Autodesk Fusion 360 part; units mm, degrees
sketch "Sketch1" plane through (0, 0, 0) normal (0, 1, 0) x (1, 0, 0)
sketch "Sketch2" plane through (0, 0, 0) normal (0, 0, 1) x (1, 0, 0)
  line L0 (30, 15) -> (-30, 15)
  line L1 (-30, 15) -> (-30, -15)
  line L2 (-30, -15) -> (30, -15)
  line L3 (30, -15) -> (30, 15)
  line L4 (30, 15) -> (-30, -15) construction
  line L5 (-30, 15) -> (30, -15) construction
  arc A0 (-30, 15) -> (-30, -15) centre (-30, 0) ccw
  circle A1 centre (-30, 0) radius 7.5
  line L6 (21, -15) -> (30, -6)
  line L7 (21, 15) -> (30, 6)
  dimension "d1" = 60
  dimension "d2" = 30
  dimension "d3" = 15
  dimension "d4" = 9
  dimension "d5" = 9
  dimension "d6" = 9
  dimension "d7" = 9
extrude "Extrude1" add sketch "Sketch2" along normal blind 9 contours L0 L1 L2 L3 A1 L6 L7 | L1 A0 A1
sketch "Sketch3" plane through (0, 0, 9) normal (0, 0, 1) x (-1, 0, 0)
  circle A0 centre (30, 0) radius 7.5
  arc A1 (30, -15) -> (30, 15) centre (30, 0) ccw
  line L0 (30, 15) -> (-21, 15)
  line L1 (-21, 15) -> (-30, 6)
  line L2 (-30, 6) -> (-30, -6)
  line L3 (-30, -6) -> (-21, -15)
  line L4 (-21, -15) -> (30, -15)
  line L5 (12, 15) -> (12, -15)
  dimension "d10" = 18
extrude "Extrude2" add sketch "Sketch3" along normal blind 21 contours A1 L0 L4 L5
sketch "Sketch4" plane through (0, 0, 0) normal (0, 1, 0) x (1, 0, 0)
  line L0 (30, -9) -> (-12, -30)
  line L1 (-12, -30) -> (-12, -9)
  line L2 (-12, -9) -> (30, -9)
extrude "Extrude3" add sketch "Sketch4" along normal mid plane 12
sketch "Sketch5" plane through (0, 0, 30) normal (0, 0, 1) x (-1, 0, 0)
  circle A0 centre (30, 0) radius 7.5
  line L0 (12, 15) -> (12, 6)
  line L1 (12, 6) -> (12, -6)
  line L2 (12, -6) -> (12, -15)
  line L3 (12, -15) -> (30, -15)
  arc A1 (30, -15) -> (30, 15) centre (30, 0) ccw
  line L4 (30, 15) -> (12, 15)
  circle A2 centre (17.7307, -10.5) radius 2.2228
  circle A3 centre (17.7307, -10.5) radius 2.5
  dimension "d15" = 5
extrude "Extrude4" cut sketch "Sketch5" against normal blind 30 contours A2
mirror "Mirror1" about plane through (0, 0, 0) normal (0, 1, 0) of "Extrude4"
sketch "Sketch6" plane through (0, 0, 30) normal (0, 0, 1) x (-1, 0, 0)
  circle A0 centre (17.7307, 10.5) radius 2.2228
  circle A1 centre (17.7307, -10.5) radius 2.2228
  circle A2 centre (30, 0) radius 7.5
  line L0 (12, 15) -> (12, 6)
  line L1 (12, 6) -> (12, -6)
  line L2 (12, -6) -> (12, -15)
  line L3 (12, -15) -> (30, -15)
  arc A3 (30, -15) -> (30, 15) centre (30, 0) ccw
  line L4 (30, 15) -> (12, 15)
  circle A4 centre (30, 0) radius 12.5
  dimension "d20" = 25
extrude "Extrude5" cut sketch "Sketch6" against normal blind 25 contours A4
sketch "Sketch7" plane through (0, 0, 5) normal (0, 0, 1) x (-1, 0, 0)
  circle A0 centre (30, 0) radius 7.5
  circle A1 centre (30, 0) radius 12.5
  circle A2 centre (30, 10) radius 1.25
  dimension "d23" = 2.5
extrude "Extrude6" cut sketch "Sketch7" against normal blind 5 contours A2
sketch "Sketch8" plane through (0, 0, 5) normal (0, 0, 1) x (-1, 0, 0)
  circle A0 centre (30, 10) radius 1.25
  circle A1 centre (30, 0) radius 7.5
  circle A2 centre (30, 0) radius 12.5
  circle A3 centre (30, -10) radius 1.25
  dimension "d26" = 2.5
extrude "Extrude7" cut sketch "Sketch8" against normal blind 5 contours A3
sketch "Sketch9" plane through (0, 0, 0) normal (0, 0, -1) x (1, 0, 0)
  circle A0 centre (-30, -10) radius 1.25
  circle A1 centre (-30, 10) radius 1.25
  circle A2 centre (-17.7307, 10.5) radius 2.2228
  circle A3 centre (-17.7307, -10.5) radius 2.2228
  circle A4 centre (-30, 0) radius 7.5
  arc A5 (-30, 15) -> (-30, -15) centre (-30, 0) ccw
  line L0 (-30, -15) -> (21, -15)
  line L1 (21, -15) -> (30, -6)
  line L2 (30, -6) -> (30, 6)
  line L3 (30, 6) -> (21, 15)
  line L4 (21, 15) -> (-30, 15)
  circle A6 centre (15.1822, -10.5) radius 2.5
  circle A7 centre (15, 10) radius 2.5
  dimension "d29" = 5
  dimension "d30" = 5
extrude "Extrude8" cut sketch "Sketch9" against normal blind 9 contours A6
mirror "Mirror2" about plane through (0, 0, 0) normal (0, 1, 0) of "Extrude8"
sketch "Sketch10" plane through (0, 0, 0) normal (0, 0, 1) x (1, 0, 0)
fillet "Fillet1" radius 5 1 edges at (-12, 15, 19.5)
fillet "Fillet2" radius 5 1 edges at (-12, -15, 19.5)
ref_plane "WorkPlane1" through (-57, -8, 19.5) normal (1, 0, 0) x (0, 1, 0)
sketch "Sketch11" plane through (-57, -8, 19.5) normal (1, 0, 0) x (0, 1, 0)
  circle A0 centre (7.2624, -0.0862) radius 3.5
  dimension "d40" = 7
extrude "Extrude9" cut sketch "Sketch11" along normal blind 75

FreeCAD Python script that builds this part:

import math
import FreeCAD as App
import Part
import Sketcher


def edges_at(feature, points):
    """Names of the edges that pass closest to the given points."""
    edges = feature.Shape.Edges
    near = lambda p: min(range(len(edges)), key=lambda i: edges[i].distToShape(Part.Vertex(*p))[0])
    return sorted({f"Edge{near(p) + 1}" for p in points})


def add_polygon(sketch, points):
    """Adds a closed chain of lines whose ends are joined by coincident constraints."""
    first, n = sketch.GeometryCount, len(points)
    for a, b in zip(points, points[1:] + points[:1]):
        sketch.addGeometry(Part.LineSegment(App.Vector(*a, 0), App.Vector(*b, 0)), False)
    for i in range(n):
        sketch.addConstraint(Sketcher.Constraint("Coincident", first + i, 2, first + (i + 1) % n, 1))

doc = App.newDocument("Part")
params = doc.addObject("Spreadsheet::Sheet", "Params")
for row, (alias, value) in enumerate([
    ("sketch1_diameter", "15 mm"),
    ("sketch1_radius", "15 mm"),
    ("pad1_length", "9 mm"),
    ("sketch2_width", "18 mm"),
    ("sketch2_diameter", "15 mm"),
    ("sketch2_radius", "15 mm"),
    ("pad2_length", "21 mm"),
    ("sketch3_width", "42 mm"),
    ("sketch3_height", "21 mm"),
    ("pad3_length", "12 mm"),
    ("pocket1_length", "30 mm"),
    ("sketch5_diameter", "25 mm"),
    ("sketch5_diameter2", "15 mm"),
    ("pocket2_length", "25 mm"),
    ("sketch6_diameter", "2.5 mm"),
    ("pocket3_length", "5 mm"),
    ("sketch7_diameter", "2.5 mm"),
    ("pocket4_length", "5 mm"),
    ("sketch8_diameter", "5 mm"),
    ("pocket5_length", "9 mm"),
    ("fillet_radius", "5 mm"),
    ("fillet2_radius", "5 mm"),
    ("sketch9_diameter", "7 mm"),
    ("pocket6_length", "75 mm"),
], start=1):
    params.set(f"A{row}", alias)
    params.set(f"B{row}", "=" + value)
    params.setAlias(f"B{row}", alias)

body = doc.addObject("PartDesign::Body", "Body")

# Sketch on XY plane
sketch1 = body.newObject("Sketcher::SketchObject", "Sketch")
sketch1.AttachmentSupport = (doc.getObject("XY_Plane"), [""])
sketch1.MapMode = "FlatFace"
sketch1.addGeometry([
    Part.LineSegment(App.Vector(30, 6, 0), App.Vector(21, 15, 0)),  # 0
    Part.LineSegment(App.Vector(21, 15, 0), App.Vector(-30, 15, 0)),  # 1
    Part.ArcOfCircle(Part.Circle(App.Vector(-30, 0, 0), App.Vector(0, 0, 1), 15), math.radians(90), math.radians(270)),  # 2
    Part.LineSegment(App.Vector(-30, -15, 0), App.Vector(21, -15, 0)),  # 3
    Part.LineSegment(App.Vector(21, -15, 0), App.Vector(30, -6, 0)),  # 4
    Part.LineSegment(App.Vector(30, -6, 0), App.Vector(30, 6, 0)),  # 5
    Part.Circle(App.Vector(-30, 0, 0), App.Vector(0, 0, 1), 8),  # 6
], False)
sketch1.addConstraint([
    Sketcher.Constraint("Coincident", 0, 2, 1, 1),
    Sketcher.Constraint("Tangent", 1, 2, 2, 1),
    Sketcher.Constraint("Tangent", 2, 2, 3, 1),
    Sketcher.Constraint("Coincident", 3, 2, 4, 1),
    Sketcher.Constraint("Coincident", 4, 2, 5, 1),
    Sketcher.Constraint("Coincident", 5, 2, 0, 1),
    Sketcher.Constraint("Horizontal", 1),
    Sketcher.Constraint("Horizontal", 3),
    Sketcher.Constraint("Vertical", 5),
    Sketcher.Constraint("Coincident", 6, 3, 2, 3),
    Sketcher.Constraint("Symmetric", 0, 2, 3, 2, -1),
    Sketcher.Constraint("Perpendicular", 0, 4),
    Sketcher.Constraint("Equal", 0, 4),
    Sketcher.Constraint("Diameter", 6, 15.0),
    Sketcher.Constraint("Radius", 2, 15.0),
    Sketcher.Constraint("DistanceX", 2, 3, -1, 1, 30.0),
    Sketcher.Constraint("DistanceX", -1, 1, 4, 2, 30.0),
    Sketcher.Constraint("DistanceX", 3, 2, 4, 2, 9.0),
])
sketch1.setExpression("Constraints[13]", "Params.sketch1_diameter")
sketch1.setExpression("Constraints[14]", "Params.sketch1_radius")
pad1 = body.newObject("PartDesign::Pad", "Pad")
pad1.Profile = sketch1
pad1.setExpression("Length", "Params.pad1_length")

# Sketch on XY plane
sketch2 = body.newObject("Sketcher::SketchObject", "Sketch001")
sketch2.AttachmentSupport = (doc.getObject("XY_Plane"), [""])
sketch2.MapMode = "FlatFace"
sketch2.AttachmentOffset = App.Placement(App.Vector(0, 0, 9), App.Rotation())
sketch2.addGeometry([
    Part.LineSegment(App.Vector(-12, 15, 0), App.Vector(-30, 15, 0)),  # 0
    Part.ArcOfCircle(Part.Circle(App.Vector(-30, 0, 0), App.Vector(0, 0, 1), 15), math.radians(90), math.radians(270)),  # 1
    Part.LineSegment(App.Vector(-30, -15, 0), App.Vector(-12, -15, 0)),  # 2
    Part.LineSegment(App.Vector(-12, -15, 0), App.Vector(-12, 15, 0)),  # 3
    Part.Circle(App.Vector(-30, 0, 0), App.Vector(0, 0, 1), 8),  # 4
], False)
sketch2.addConstraint([
    Sketcher.Constraint("Tangent", 0, 2, 1, 1),
    Sketcher.Constraint("Tangent", 1, 2, 2, 1),
    Sketcher.Constraint("Coincident", 2, 2, 3, 1),
    Sketcher.Constraint("Coincident", 3, 2, 0, 1),
    Sketcher.Constraint("Horizontal", 0),
    Sketcher.Constraint("Horizontal", 2),
    Sketcher.Constraint("Vertical", 3),
    Sketcher.Constraint("Coincident", 4, 3, 1, 3),
    Sketcher.Constraint("PointOnObject", 1, 3, -1),
    Sketcher.Constraint("DistanceX", 0, 2, 0, 1, 18.0),
    Sketcher.Constraint("Diameter", 4, 15.0),
    Sketcher.Constraint("Radius", 1, 15.0),
    Sketcher.Constraint("DistanceX", 1, 3, -1, 1, 30.0),
])
sketch2.setExpression("Constraints[9]", "Params.sketch2_width")
sketch2.setExpression("Constraints[10]", "Params.sketch2_diameter")
sketch2.setExpression("Constraints[11]", "Params.sketch2_radius")
pad2 = body.newObject("PartDesign::Pad", "Pad001")
pad2.Profile = sketch2
pad2.setExpression("Length", "Params.pad2_length")

# Sketch on XZ plane
sketch3 = body.newObject("Sketcher::SketchObject", "Sketch002")
sketch3.AttachmentSupport = (doc.getObject("XZ_Plane"), [""])
sketch3.MapMode = "FlatFace"
add_polygon(sketch3, [(-12, 30), (30, 9), (-12, 9)])  # lines 0-2
sketch3.addConstraint([
    Sketcher.Constraint("Horizontal", 1),
    Sketcher.Constraint("Vertical", 2),
    Sketcher.Constraint("DistanceX", 1, 2, 1, 1, 42.0),
    Sketcher.Constraint("DistanceY", 2, 1, 2, 2, 21.0),
    Sketcher.Constraint("DistanceX", -1, 1, 0, 2, 30.0),
    Sketcher.Constraint("DistanceY", -1, 1, 0, 2, 9.0),
])
sketch3.setExpression("Constraints[5]", "Params.sketch3_width")
sketch3.setExpression("Constraints[6]", "Params.sketch3_height")
pad3 = body.newObject("PartDesign::Pad", "Pad002")
pad3.Profile = sketch3
pad3.setExpression("Length", "Params.pad3_length")
pad3.Midplane = True

# Sketch on XY plane
sketch4 = body.newObject("Sketcher::SketchObject", "Sketch003")
sketch4.AttachmentSupport = (doc.getObject("XY_Plane"), [""])
sketch4.MapMode = "FlatFace"
sketch4.AttachmentOffset = App.Placement(App.Vector(0, 0, 30), App.Rotation())
sketch4.addGeometry(Part.Circle(App.Vector(-17.7, 10.5, 0), App.Vector(0, 0, 1), 2.2), False)
sketch4.addConstraint([
    Sketcher.Constraint("Diameter", 0, 4.4456),
    Sketcher.Constraint("DistanceY", -1, 1, 0, 3, 10.5),
    Sketcher.Constraint("DistanceX", 0, 3, -1, 1, 17.7307),
])
pocket1 = body.newObject("PartDesign::Pocket", "Pocket")
pocket1.Profile = sketch4
pocket1.setExpression("Length", "Params.pocket1_length")
doc.recompute()

mirrored = body.newObject("PartDesign::Mirrored", "Mirrored")
mirrored.Originals = [pocket1]
mirrored.MirrorPlane = (doc.getObject("XZ_Plane"), [""])
body.Tip = mirrored

# Sketch on XY plane
sketch5 = body.newObject("Sketcher::SketchObject", "Sketch004")
sketch5.AttachmentSupport = (doc.getObject("XY_Plane"), [""])
sketch5.MapMode = "FlatFace"
sketch5.AttachmentOffset = App.Placement(App.Vector(0, 0, 30), App.Rotation())
sketch5.addGeometry([
    Part.Circle(App.Vector(-30, 0, 0), App.Vector(0, 0, 1), 12),
    Part.Circle(App.Vector(-30, 0, 0), App.Vector(0, 0, 1), 8),
], False)
sketch5.addConstraint([
    Sketcher.Constraint("Coincident", 1, 3, 0, 3),
    Sketcher.Constraint("PointOnObject", 0, 3, -1),
    Sketcher.Constraint("Diameter", 0, 25.0),
    Sketcher.Constraint("Diameter", 1, 15.0),
    Sketcher.Constraint("DistanceX", 0, 3, -1, 1, 30.0),
])
sketch5.setExpression("Constraints[2]", "Params.sketch5_diameter")
sketch5.setExpression("Constraints[3]", "Params.sketch5_diameter2")
pocket2 = body.newObject("PartDesign::Pocket", "Pocket001")
pocket2.Profile = sketch5
pocket2.setExpression("Length", "Params.pocket2_length")

# Sketch on XY plane
sketch6 = body.newObject("Sketcher::SketchObject", "Sketch005")
sketch6.AttachmentSupport = (doc.getObject("XY_Plane"), [""])
sketch6.MapMode = "FlatFace"
sketch6.AttachmentOffset = App.Placement(App.Vector(0, 0, 5), App.Rotation())
sketch6.addGeometry(Part.Circle(App.Vector(-30, -10, 0), App.Vector(0, 0, 1), 1.2), False)
sketch6.addConstraint([
    Sketcher.Constraint("Diameter", 0, 2.5),
    Sketcher.Constraint("DistanceX", 0, 3, -1, 1, 30.0),
    Sketcher.Constraint("DistanceY", 0, 3, -1, 1, 10.0),
])
sketch6.setExpression("Constraints[0]", "Params.sketch6_diameter")
pocket3 = body.newObject("PartDesign::Pocket", "Pocket002")
pocket3.Profile = sketch6
pocket3.setExpression("Length", "Params.pocket3_length")

# Sketch on XY plane
sketch7 = body.newObject("Sketcher::SketchObject", "Sketch006")
sketch7.AttachmentSupport = (doc.getObject("XY_Plane"), [""])
sketch7.MapMode = "FlatFace"
sketch7.AttachmentOffset = App.Placement(App.Vector(0, 0, 5), App.Rotation())
sketch7.addGeometry(Part.Circle(App.Vector(-30, 10, 0), App.Vector(0, 0, 1), 1.2), False)
sketch7.addConstraint([
    Sketcher.Constraint("Diameter", 0, 2.5),
    Sketcher.Constraint("DistanceX", 0, 3, -1, 1, 30.0),
    Sketcher.Constraint("DistanceY", -1, 1, 0, 3, 10.0),
])
sketch7.setExpression("Constraints[0]", "Params.sketch7_diameter")
pocket4 = body.newObject("PartDesign::Pocket", "Pocket003")
pocket4.Profile = sketch7
pocket4.setExpression("Length", "Params.pocket4_length")

# Sketch on XY plane
sketch8 = body.newObject("Sketcher::SketchObject", "Sketch007")
sketch8.AttachmentSupport = (doc.getObject("XY_Plane"), [""])
sketch8.MapMode = "FlatFace"
sketch8.addGeometry(Part.Circle(App.Vector(15.2, 10.5, 0), App.Vector(0, 0, 1), 2.5), False)
sketch8.addConstraint([
    Sketcher.Constraint("Diameter", 0, 5.0),
    Sketcher.Constraint("DistanceY", -1, 1, 0, 3, 10.5),
    Sketcher.Constraint("DistanceX", -1, 1, 0, 3, 15.1822),
])
sketch8.setExpression("Constraints[0]", "Params.sketch8_diameter")
pocket5 = body.newObject("PartDesign::Pocket", "Pocket004")
pocket5.Profile = sketch8
pocket5.setExpression("Length", "Params.pocket5_length")
pocket5.Reversed = True
doc.recompute()

mirrored2 = body.newObject("PartDesign::Mirrored", "Mirrored001")
mirrored2.Originals = [pocket5]
mirrored2.MirrorPlane = (doc.getObject("XZ_Plane"), [""])
body.Tip = mirrored2
doc.recompute()

fillet = body.newObject("PartDesign::Fillet", "Fillet")
fillet.Base = (mirrored2, edges_at(mirrored2, [(-12, 15, 19.5)]))
fillet.setExpression("Radius", "Params.fillet_radius")
doc.recompute()

fillet2 = body.newObject("PartDesign::Fillet", "Fillet001")
fillet2.Base = (fillet, edges_at(fillet, [(-12, -15, 19.5)]))
fillet2.setExpression("Radius", "Params.fillet2_radius")

# Sketch on YZ plane
sketch9 = body.newObject("Sketcher::SketchObject", "Sketch008")
sketch9.AttachmentSupport = (doc.getObject("YZ_Plane"), [""])
sketch9.MapMode = "FlatFace"
sketch9.AttachmentOffset = App.Placement(App.Vector(0, 0, -57), App.Rotation())
sketch9.addGeometry(Part.Circle(App.Vector(-0.7, 19.4, 0), App.Vector(0, 0, 1), 3.5), False)
sketch9.addConstraint([
    Sketcher.Constraint("Diameter", 0, 7.0),
    Sketcher.Constraint("DistanceX", 0, 3, -1, 1, 0.7376),
    Sketcher.Constraint("DistanceY", -1, 1, 0, 3, 19.4138),
])
sketch9.setExpression("Constraints[0]", "Params.sketch9_diameter")
pocket6 = body.newObject("PartDesign::Pocket", "Pocket005")
pocket6.Profile = sketch9
pocket6.setExpression("Length", "Params.pocket6_length")
pocket6.Reversed = True

doc.recompute()
